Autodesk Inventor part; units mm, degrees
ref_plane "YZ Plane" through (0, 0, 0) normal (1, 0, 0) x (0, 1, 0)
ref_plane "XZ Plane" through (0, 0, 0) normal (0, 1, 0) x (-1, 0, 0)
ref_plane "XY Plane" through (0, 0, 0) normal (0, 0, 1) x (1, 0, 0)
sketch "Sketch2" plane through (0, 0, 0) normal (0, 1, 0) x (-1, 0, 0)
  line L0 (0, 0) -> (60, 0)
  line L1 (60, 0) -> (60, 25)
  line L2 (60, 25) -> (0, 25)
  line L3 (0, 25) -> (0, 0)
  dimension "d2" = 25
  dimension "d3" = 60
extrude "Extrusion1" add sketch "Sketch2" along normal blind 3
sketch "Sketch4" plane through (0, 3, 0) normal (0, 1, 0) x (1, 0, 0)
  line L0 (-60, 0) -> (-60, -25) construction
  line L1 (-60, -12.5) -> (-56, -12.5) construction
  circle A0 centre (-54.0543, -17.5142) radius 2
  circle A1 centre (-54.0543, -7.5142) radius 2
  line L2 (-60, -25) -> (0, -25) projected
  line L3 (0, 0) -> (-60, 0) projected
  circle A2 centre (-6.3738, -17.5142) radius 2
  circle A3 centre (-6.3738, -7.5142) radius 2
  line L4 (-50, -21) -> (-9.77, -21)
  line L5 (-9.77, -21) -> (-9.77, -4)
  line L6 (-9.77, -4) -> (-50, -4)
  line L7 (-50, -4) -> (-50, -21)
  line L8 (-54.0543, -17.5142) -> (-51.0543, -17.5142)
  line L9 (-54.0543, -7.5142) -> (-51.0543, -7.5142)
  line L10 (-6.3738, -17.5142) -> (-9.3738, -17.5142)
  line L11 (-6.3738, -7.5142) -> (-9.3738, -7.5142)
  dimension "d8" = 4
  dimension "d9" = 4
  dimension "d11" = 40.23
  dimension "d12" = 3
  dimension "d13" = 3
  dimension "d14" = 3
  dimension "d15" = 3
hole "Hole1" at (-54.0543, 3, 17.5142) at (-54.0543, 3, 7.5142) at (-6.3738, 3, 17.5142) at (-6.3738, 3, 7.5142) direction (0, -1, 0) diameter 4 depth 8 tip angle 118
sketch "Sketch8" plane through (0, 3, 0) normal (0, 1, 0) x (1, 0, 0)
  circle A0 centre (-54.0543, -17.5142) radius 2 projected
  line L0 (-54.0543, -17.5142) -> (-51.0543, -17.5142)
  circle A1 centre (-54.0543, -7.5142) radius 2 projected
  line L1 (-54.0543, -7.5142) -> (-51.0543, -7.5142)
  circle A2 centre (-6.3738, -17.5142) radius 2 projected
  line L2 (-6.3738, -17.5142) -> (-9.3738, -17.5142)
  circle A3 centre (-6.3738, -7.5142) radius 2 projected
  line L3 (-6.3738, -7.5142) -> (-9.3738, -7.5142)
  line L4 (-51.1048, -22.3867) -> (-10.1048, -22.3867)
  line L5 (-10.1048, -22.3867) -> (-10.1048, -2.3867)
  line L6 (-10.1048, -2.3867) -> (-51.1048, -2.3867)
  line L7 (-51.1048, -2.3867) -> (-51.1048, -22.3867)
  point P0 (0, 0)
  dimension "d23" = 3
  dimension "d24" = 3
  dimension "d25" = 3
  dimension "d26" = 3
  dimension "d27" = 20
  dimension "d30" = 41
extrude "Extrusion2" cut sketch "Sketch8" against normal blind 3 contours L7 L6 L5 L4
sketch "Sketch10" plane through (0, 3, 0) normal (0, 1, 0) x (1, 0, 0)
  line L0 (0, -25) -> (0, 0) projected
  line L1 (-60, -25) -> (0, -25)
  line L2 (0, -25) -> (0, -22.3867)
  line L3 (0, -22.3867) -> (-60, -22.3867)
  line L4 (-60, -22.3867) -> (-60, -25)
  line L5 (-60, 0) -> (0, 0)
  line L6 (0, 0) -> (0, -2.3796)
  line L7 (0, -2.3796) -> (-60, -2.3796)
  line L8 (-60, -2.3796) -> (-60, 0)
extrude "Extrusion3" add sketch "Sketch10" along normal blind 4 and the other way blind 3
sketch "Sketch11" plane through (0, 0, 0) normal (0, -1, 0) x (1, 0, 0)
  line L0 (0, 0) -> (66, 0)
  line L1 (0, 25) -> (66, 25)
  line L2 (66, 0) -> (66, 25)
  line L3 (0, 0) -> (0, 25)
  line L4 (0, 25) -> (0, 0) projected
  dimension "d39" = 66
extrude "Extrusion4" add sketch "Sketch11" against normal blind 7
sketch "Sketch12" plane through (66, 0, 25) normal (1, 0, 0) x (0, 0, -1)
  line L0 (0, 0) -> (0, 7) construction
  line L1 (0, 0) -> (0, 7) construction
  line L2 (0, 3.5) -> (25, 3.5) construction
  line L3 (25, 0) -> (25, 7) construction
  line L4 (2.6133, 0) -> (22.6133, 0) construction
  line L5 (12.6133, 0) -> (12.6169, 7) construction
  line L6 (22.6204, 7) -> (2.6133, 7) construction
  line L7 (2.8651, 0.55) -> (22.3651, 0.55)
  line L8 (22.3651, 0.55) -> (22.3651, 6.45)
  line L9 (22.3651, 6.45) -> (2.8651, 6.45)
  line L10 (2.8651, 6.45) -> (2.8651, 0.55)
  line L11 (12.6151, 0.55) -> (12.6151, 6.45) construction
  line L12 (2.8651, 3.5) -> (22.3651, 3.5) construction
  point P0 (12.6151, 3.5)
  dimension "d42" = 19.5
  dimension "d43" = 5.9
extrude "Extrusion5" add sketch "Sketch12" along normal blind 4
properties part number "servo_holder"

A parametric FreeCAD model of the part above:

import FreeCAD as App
import Part
import Sketcher
from FreeCAD import Vector
Q = App.Units.Quantity


def add_polygon(sketch, points):
    """Adds a closed chain of lines whose ends are joined by coincident constraints."""
    first, n = sketch.GeometryCount, len(points)
    for a, b in zip(points, points[1:] + points[:1]):
        sketch.addGeometry(Part.LineSegment(App.Vector(*a, 0), App.Vector(*b, 0)), False)
    for i in range(n):
        sketch.addConstraint(Sketcher.Constraint("Coincident", first + i, 2, first + (i + 1) % n, 1))

doc = App.newDocument("Part")
body = doc.addObject("PartDesign::Body", "Body")

# Sketch on XZ plane
sketch1 = body.newObject("Sketcher::SketchObject", "Sketch")
sketch1.AttachmentSupport = (doc.getObject("XZ_Plane"), [""])
sketch1.MapMode = "FlatFace"
add_polygon(sketch1, [(0, 25), (0, 0), (-60, 0), (-60, 25)])  # lines 0-3
sketch1.addConstraint(Sketcher.Constraint("Vertical", 0))
sketch1.addConstraint(Sketcher.Constraint("Horizontal", 1))
sketch1.addConstraint(Sketcher.Constraint("Vertical", 2))
sketch1.addConstraint(Sketcher.Constraint("Horizontal", 3))
sketch1.addConstraint(Sketcher.Constraint("Coincident", 0, 2, -1, 1))
sketch1.addConstraint(Sketcher.Constraint("DistanceX", 1, 2, 1, 1, Q("60 mm")))
sketch1.addConstraint(Sketcher.Constraint("DistanceY", 0, 2, 0, 1, Q("25 mm")))
pad1 = body.newObject("PartDesign::Pad", "Pad")
pad1.Profile = sketch1
pad1.Length = 3
pad1.Reversed = True

# Sketch on XZ plane
sketch2 = body.newObject("Sketcher::SketchObject", "Sketch001")
sketch2.AttachmentSupport = (doc.getObject("XZ_Plane"), [""])
sketch2.MapMode = "FlatFace"
sketch2.AttachmentOffset = App.Placement(Vector(0, 0, -3), App.Rotation())
sketch2.addGeometry(Part.Circle(Vector(-54.1, 17.5, 0), Vector(0, 0, 1), 2), False)
sketch2.addGeometry(Part.Circle(Vector(-54.1, 7.5, 0), Vector(0, 0, 1), 2), False)
sketch2.addGeometry(Part.Circle(Vector(-6.4, 17.5, 0), Vector(0, 0, 1), 2), False)
sketch2.addGeometry(Part.Circle(Vector(-6.4, 7.5, 0), Vector(0, 0, 1), 2), False)
sketch2.addConstraint(Sketcher.Constraint("Equal", 0, 1))
sketch2.addConstraint(Sketcher.Constraint("Equal", 1, 2))
sketch2.addConstraint(Sketcher.Constraint("Equal", 2, 3))
sketch2.addConstraint(Sketcher.Constraint("Horizontal", 0, 3, 2, 3))
sketch2.addConstraint(Sketcher.Constraint("Horizontal", 1, 3, 3, 3))
sketch2.addConstraint(Sketcher.Constraint("Vertical", 0, 3, 1, 3))
sketch2.addConstraint(Sketcher.Constraint("Vertical", 2, 3, 3, 3))
sketch2.addConstraint(Sketcher.Constraint("Diameter", 0, Q("4 mm")))
sketch2.addConstraint(Sketcher.Constraint("DistanceY", 1, 3, 0, 3, Q("10 mm")))
sketch2.addConstraint(Sketcher.Constraint("DistanceX", 0, 3, -1, 1, Q("54.0543 mm")))
sketch2.addConstraint(Sketcher.Constraint("DistanceY", -1, 1, 0, 3, Q("17.5142 mm")))
sketch2.addConstraint(Sketcher.Constraint("DistanceX", 2, 3, -1, 1, Q("6.3738 mm")))
doc.recompute()
hole = body.newObject("PartDesign::Hole", "Hole")
hole.Profile = sketch2
hole.ThreadType = "None"
hole.Diameter = 4
hole.DepthType = "Dimension"
hole.Depth = 8
hole.DrillPoint = "Angled"
hole.DrillPointAngle = 118
hole.Reversed = True

# Sketch on XZ plane
sketch3 = body.newObject("Sketcher::SketchObject", "Sketch002")
sketch3.AttachmentSupport = (doc.getObject("XZ_Plane"), [""])
sketch3.MapMode = "FlatFace"
sketch3.AttachmentOffset = App.Placement(Vector(0, 0, -3), App.Rotation())
add_polygon(sketch3, [(-51, 2), (-51, 22), (-10, 22), (-10, 2)])  # lines 0-3
sketch3.addConstraint(Sketcher.Constraint("Vertical", 0))
sketch3.addConstraint(Sketcher.Constraint("Horizontal", 1))
sketch3.addConstraint(Sketcher.Constraint("Vertical", 2))
sketch3.addConstraint(Sketcher.Constraint("Horizontal", 3))
sketch3.addConstraint(Sketcher.Constraint("DistanceX", 1, 1, 1, 2, Q("41 mm")))
sketch3.addConstraint(Sketcher.Constraint("DistanceY", 0, 1, 0, 2, Q("20 mm")))
sketch3.addConstraint(Sketcher.Constraint("DistanceX", 0, 2, -1, 1, Q("51.1048 mm")))
sketch3.addConstraint(Sketcher.Constraint("DistanceY", -1, 1, 0, 2, Q("22.3867 mm")))
pocket1 = body.newObject("PartDesign::Pocket", "Pocket")
pocket1.Profile = sketch3
pocket1.Length = 3
pocket1.Reversed = True

# Sketch on XZ plane
sketch4 = body.newObject("Sketcher::SketchObject", "Sketch003")
sketch4.AttachmentSupport = (doc.getObject("XZ_Plane"), [""])
sketch4.MapMode = "FlatFace"
sketch4.AttachmentOffset = App.Placement(Vector(0, 0, -3), App.Rotation())
add_polygon(sketch4, [(-60, 25), (0, 25), (0, 22.4), (-60, 22.4)])  # lines 0-3
add_polygon(sketch4, [(-60, 2.4), (0, 2.4), (0, 0), (-60, 0)])  # lines 4-7
sketch4.addConstraint(Sketcher.Constraint("Horizontal", 0))
sketch4.addConstraint(Sketcher.Constraint("Vertical", 1))
sketch4.addConstraint(Sketcher.Constraint("Horizontal", 2))
sketch4.addConstraint(Sketcher.Constraint("Vertical", 3))
sketch4.addConstraint(Sketcher.Constraint("Horizontal", 4))
sketch4.addConstraint(Sketcher.Constraint("Vertical", 5))
sketch4.addConstraint(Sketcher.Constraint("Horizontal", 6))
sketch4.addConstraint(Sketcher.Constraint("Vertical", 7))
sketch4.addConstraint(Sketcher.Constraint("Coincident", 5, 2, -1, 1))
sketch4.addConstraint(Sketcher.Constraint("PointOnObject", 0, 2, -2))
sketch4.addConstraint(Sketcher.Constraint("Vertical", 3, 2, 6, 2))
sketch4.addConstraint(Sketcher.Constraint("DistanceX", 0, 1, 0, 2, Q("60 mm")))
sketch4.addConstraint(Sketcher.Constraint("DistanceY", -1, 1, 0, 2, Q("25 mm")))
sketch4.addConstraint(Sketcher.Constraint("DistanceY", 1, 2, 1, 1, Q("2.6133 mm")))
sketch4.addConstraint(Sketcher.Constraint("DistanceY", 5, 2, 5, 1, Q("2.3796 mm")))
pad2 = body.newObject("PartDesign::Pad", "Pad001")
pad2.Profile = sketch4
pad2.Type = "TwoLengths"
pad2.Length = 4
pad2.Length2 = 3
pad2.Reversed = True

# Sketch on XZ plane
sketch5 = body.newObject("Sketcher::SketchObject", "Sketch004")
sketch5.AttachmentSupport = (doc.getObject("XZ_Plane"), [""])
sketch5.MapMode = "FlatFace"
add_polygon(sketch5, [(0, 25), (0, 0), (66, 0), (66, 25)])  # lines 0-3
sketch5.addConstraint(Sketcher.Constraint("Vertical", 0))
sketch5.addConstraint(Sketcher.Constraint("Horizontal", 1))
sketch5.addConstraint(Sketcher.Constraint("Vertical", 2))
sketch5.addConstraint(Sketcher.Constraint("Horizontal", 3))
sketch5.addConstraint(Sketcher.Constraint("Coincident", 0, 2, -1, 1))
sketch5.addConstraint(Sketcher.Constraint("DistanceX", 1, 1, 1, 2, Q("66 mm")))
sketch5.addConstraint(Sketcher.Constraint("DistanceY", 0, 2, 0, 1, Q("25 mm")))
pad3 = body.newObject("PartDesign::Pad", "Pad002")
pad3.Profile = sketch5
pad3.Length = 7
pad3.Reversed = True

# Sketch on YZ plane
sketch6 = body.newObject("Sketcher::SketchObject", "Sketch005")
sketch6.AttachmentSupport = (doc.getObject("YZ_Plane"), [""])
sketch6.MapMode = "FlatFace"
sketch6.AttachmentOffset = App.Placement(Vector(0, 0, 66), App.Rotation())
add_polygon(sketch6, [(6, 22), (1, 22), (1, 3), (6, 3)])  # lines 0-3
sketch6.addConstraint(Sketcher.Constraint("Horizontal", 0))
sketch6.addConstraint(Sketcher.Constraint("Vertical", 1))
sketch6.addConstraint(Sketcher.Constraint("Horizontal", 2))
sketch6.addConstraint(Sketcher.Constraint("Vertical", 3))
sketch6.addConstraint(Sketcher.Constraint("DistanceX", 0, 2, 0, 1, Q("5.9 mm")))
sketch6.addConstraint(Sketcher.Constraint("DistanceY", 1, 2, 1, 1, Q("19.5 mm")))
sketch6.addConstraint(Sketcher.Constraint("DistanceX", -1, 1, 0, 2, Q("0.55 mm")))
sketch6.addConstraint(Sketcher.Constraint("DistanceY", -1, 1, 0, 2, Q("22.135 mm")))
pad4 = body.newObject("PartDesign::Pad", "Pad003")
pad4.Profile = sketch6
pad4.Length = 4

doc.recompute()
